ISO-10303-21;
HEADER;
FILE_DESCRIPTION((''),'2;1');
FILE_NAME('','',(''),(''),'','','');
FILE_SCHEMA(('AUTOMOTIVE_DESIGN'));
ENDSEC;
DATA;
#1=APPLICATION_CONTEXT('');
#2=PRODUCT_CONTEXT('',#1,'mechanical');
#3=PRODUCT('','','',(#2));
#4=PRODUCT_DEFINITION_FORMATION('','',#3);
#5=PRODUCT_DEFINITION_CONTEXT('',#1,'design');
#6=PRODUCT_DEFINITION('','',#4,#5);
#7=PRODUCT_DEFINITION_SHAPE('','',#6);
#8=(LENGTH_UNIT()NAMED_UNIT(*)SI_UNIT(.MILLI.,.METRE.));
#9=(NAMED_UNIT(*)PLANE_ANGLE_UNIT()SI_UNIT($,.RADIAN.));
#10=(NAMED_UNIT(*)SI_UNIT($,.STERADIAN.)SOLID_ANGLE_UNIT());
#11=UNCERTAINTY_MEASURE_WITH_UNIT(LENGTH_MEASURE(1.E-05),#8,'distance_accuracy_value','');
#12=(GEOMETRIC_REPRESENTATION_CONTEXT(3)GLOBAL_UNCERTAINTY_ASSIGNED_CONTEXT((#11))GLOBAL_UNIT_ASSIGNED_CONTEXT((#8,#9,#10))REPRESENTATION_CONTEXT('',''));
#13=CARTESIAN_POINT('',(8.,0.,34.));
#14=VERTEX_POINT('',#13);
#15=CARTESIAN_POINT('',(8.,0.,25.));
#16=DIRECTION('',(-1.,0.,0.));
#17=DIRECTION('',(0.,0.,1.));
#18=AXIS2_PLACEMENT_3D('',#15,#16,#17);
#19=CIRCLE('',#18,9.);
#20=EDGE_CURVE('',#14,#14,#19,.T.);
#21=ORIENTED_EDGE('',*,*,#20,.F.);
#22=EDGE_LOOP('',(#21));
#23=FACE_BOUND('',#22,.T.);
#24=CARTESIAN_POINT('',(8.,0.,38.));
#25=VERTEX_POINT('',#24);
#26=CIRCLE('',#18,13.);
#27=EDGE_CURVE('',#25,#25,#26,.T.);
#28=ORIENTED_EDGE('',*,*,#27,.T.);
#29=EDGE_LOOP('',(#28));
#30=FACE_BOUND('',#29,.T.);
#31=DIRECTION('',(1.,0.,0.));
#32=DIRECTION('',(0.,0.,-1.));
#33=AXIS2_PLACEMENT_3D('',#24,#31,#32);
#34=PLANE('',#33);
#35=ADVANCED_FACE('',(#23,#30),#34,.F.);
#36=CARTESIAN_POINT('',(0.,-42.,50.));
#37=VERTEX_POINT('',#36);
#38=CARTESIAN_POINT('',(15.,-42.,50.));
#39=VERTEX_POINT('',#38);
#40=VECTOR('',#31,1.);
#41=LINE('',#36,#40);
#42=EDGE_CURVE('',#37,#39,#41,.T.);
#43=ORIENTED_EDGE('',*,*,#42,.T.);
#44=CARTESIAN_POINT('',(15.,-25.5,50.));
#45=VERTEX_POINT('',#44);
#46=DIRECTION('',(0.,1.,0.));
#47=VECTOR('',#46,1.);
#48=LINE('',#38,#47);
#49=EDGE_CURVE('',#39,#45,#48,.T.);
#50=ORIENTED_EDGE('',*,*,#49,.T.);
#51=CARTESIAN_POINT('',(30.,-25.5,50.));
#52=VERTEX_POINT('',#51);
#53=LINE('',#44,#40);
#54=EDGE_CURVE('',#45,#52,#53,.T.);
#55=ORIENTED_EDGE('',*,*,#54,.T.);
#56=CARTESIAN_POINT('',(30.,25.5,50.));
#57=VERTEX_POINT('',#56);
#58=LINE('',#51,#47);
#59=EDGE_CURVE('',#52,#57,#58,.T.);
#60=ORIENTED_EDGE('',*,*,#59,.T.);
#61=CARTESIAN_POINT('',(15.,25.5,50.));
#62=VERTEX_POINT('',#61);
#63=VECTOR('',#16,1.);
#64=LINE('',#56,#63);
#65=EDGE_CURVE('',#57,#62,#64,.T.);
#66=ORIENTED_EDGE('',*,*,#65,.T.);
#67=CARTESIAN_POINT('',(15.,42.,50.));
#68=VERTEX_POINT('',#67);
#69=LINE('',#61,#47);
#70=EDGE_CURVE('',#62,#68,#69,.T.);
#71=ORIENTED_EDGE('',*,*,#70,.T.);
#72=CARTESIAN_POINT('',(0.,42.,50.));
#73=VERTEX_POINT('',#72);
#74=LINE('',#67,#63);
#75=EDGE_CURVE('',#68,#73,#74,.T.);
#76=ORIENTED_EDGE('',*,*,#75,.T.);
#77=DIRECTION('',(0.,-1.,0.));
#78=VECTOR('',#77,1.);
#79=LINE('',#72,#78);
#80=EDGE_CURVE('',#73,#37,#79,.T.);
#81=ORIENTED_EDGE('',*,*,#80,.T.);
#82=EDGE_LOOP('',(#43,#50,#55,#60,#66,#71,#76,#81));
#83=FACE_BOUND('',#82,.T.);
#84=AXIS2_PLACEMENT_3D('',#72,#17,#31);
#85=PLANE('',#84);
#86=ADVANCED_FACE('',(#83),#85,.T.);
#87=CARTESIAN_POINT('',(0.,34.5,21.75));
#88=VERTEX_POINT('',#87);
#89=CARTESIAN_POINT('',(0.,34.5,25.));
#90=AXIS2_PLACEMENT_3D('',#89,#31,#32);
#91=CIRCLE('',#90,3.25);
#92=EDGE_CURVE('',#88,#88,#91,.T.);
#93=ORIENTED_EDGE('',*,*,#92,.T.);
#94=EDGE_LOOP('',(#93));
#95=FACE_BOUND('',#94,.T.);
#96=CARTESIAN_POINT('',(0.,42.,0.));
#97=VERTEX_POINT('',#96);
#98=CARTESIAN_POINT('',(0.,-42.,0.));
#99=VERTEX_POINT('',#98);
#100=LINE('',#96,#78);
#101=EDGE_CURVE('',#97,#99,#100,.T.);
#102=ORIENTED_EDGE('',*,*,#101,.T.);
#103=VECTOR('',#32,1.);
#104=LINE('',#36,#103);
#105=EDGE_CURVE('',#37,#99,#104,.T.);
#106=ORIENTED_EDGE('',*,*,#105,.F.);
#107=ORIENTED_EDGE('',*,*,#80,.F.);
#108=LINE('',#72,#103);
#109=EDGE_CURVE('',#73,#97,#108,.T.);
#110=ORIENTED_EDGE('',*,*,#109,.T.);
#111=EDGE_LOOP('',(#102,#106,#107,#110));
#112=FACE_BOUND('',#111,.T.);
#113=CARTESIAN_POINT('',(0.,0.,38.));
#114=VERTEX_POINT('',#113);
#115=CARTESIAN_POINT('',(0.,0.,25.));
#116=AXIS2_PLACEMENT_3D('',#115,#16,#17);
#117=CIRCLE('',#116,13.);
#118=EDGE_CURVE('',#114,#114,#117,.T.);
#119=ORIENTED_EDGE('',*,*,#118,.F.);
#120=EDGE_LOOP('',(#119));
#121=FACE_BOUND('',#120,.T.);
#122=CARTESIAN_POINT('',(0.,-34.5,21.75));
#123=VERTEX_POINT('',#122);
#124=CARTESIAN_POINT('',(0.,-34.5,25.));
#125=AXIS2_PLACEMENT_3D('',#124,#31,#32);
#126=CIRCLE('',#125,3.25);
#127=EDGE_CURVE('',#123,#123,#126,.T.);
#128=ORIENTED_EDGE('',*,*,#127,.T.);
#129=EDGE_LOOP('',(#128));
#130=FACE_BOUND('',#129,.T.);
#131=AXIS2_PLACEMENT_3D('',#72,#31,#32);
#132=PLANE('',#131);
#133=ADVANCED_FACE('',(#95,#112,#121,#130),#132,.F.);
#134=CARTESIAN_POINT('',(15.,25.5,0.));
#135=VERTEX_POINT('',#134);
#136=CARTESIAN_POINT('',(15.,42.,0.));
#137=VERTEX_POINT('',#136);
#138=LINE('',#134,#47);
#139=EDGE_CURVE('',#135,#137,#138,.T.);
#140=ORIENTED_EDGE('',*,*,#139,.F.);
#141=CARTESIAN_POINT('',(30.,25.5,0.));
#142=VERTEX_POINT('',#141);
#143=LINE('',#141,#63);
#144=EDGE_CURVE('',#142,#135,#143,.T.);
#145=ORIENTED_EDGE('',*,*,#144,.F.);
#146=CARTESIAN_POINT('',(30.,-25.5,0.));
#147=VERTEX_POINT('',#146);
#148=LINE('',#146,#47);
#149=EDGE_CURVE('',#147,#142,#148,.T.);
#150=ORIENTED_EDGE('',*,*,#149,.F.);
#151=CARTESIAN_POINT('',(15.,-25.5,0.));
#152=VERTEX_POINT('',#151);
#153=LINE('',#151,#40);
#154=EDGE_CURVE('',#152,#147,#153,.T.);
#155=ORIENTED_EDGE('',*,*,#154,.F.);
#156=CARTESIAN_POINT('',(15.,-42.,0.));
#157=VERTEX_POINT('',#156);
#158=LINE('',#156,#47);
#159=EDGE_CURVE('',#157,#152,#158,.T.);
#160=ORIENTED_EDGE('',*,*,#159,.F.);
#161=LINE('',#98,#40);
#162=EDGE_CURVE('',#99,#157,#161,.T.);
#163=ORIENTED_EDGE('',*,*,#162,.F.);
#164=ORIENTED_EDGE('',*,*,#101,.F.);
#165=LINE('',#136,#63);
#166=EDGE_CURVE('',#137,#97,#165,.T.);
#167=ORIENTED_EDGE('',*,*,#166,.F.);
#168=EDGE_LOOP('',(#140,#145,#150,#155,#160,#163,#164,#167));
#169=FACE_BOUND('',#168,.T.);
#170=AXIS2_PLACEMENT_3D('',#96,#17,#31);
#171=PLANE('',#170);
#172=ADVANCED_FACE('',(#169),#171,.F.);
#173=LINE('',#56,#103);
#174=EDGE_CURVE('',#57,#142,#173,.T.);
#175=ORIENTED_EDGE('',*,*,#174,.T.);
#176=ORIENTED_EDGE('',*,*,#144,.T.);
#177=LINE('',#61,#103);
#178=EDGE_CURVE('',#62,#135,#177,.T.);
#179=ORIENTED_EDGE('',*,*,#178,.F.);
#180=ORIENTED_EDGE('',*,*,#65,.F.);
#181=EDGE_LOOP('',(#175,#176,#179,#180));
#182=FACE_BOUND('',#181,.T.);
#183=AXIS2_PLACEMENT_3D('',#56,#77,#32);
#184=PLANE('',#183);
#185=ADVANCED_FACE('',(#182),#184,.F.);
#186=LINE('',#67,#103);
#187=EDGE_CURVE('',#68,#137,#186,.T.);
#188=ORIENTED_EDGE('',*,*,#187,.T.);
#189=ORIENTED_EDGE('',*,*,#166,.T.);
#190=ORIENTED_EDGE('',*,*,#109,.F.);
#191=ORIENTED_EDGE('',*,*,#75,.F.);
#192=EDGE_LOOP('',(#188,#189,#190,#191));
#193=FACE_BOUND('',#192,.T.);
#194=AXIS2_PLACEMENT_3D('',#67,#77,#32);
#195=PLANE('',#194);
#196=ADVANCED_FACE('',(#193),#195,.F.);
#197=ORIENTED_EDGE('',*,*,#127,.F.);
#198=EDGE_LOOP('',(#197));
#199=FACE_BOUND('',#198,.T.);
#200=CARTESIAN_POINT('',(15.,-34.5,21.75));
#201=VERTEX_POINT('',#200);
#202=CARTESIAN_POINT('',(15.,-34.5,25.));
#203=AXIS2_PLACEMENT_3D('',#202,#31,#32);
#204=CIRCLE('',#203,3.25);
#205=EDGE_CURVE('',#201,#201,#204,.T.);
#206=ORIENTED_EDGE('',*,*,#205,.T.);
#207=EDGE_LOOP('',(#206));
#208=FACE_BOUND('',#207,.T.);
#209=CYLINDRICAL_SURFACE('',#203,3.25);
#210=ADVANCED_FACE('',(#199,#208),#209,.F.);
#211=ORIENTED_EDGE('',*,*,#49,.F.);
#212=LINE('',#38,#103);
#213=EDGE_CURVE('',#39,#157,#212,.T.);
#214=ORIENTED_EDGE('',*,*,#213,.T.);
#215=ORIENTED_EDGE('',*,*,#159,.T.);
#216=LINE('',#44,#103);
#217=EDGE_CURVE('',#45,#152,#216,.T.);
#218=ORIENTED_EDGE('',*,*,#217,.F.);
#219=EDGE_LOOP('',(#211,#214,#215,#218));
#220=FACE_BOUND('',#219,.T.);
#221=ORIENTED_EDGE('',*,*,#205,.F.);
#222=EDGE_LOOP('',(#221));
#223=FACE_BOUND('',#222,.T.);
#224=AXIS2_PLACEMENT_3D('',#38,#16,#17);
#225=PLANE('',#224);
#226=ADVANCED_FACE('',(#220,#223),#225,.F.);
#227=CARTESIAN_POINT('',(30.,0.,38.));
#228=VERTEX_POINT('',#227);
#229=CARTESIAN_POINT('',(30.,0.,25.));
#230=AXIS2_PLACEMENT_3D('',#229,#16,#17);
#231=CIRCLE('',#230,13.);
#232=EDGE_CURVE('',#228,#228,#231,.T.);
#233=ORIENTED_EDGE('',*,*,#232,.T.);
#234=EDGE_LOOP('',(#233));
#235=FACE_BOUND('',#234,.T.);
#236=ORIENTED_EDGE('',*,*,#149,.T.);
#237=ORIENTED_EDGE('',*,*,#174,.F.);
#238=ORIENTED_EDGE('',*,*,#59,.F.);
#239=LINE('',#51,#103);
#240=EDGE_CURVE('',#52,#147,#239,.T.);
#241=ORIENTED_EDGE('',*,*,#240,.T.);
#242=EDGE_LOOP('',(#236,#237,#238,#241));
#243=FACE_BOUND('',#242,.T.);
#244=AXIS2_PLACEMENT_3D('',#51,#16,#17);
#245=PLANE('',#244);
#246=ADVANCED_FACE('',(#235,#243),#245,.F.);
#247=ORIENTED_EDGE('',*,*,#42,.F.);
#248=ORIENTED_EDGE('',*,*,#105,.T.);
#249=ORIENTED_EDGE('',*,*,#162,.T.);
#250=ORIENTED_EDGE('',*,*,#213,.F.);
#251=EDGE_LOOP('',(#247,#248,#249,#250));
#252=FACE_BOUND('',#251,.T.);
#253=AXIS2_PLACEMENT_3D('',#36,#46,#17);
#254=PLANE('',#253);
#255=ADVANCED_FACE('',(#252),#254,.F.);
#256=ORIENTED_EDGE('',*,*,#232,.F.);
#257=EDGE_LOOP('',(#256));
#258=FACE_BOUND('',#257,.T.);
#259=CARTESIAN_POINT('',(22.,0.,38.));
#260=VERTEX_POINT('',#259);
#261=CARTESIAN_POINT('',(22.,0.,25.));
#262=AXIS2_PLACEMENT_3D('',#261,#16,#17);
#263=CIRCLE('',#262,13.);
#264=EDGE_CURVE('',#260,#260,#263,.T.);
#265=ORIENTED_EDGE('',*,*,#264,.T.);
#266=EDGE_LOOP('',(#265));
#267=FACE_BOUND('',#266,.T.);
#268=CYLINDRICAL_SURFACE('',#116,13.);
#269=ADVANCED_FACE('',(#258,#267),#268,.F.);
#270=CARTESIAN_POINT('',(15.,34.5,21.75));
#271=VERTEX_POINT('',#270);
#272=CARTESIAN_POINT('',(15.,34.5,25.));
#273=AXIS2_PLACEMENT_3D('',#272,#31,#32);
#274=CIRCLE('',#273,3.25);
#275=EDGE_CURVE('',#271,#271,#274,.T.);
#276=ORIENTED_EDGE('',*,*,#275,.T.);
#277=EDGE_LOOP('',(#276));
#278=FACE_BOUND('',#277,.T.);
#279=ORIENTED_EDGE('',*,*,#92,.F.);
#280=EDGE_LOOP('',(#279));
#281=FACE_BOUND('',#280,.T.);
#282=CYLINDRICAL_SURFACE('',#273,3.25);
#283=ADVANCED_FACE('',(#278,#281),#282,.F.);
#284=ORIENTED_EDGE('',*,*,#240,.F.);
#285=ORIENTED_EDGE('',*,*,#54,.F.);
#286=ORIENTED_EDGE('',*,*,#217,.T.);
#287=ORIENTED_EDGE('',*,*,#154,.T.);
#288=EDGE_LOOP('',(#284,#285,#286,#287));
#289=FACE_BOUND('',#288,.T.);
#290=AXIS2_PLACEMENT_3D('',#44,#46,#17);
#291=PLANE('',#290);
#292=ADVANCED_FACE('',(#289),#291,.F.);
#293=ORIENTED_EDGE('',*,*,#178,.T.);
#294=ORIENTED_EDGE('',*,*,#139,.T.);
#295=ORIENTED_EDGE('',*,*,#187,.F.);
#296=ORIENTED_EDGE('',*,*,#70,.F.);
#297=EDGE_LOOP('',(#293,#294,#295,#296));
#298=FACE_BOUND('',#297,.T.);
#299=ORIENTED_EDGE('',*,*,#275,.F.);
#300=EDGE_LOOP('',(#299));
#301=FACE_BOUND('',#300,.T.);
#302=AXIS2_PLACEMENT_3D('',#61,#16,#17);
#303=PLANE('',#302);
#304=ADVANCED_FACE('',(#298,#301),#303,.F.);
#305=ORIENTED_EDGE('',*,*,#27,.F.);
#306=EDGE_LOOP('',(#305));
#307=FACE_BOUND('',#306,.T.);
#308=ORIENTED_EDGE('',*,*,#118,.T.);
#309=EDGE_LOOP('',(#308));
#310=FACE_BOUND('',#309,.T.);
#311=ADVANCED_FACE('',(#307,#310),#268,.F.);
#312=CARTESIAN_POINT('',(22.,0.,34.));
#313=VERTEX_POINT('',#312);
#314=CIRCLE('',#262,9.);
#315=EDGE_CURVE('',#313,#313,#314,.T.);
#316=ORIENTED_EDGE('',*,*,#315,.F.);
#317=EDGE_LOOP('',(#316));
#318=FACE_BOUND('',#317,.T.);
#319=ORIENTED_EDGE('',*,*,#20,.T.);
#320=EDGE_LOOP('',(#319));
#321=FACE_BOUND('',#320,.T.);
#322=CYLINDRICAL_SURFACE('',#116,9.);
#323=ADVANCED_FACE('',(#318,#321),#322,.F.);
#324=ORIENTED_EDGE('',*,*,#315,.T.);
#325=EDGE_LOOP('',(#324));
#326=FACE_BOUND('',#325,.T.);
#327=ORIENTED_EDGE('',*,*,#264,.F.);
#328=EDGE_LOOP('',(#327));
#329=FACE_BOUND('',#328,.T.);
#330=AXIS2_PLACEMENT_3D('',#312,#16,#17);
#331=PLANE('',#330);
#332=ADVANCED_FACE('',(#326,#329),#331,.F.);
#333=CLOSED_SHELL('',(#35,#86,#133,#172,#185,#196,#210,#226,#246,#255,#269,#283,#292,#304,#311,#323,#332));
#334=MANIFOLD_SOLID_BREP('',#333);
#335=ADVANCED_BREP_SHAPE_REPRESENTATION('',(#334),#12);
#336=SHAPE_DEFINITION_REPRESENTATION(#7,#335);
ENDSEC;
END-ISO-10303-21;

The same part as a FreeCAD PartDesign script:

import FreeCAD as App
import Part
import Sketcher

V = App.Vector

doc = App.newDocument("Part")
body = doc.addObject("PartDesign::Body", "Body")

# Sketch on XY plane
sketch1 = body.newObject("Sketcher::SketchObject", "Sketch")
sketch1.AttachmentSupport = (doc.getObject("XY_Plane"), [""])
sketch1.MapMode = "FlatFace"
sketch1.addGeometry(Part.LineSegment(V(0, 42, 0), V(0, -42, 0)), False)
sketch1.addGeometry(Part.LineSegment(V(0, -42, 0), V(15, -42, 0)), False)
sketch1.addGeometry(Part.LineSegment(V(15, -42, 0), V(15, -25.5, 0)), False)
sketch1.addGeometry(Part.LineSegment(V(15, -25.5, 0), V(30, -25.5, 0)), False)
sketch1.addGeometry(Part.LineSegment(V(30, -25.5, 0), V(30, 25.5, 0)), False)
sketch1.addGeometry(Part.LineSegment(V(30, 25.5, 0), V(15, 25.5, 0)), False)
sketch1.addGeometry(Part.LineSegment(V(15, 25.5, 0), V(15, 42, 0)), False)
sketch1.addGeometry(Part.LineSegment(V(15, 42, 0), V(0, 42, 0)), False)
sketch1.addConstraint(Sketcher.Constraint("Coincident", 0, 2, 1, 1))
sketch1.addConstraint(Sketcher.Constraint("Coincident", 1, 2, 2, 1))
sketch1.addConstraint(Sketcher.Constraint("Coincident", 2, 2, 3, 1))
sketch1.addConstraint(Sketcher.Constraint("Coincident", 3, 2, 4, 1))
sketch1.addConstraint(Sketcher.Constraint("Coincident", 4, 2, 5, 1))
sketch1.addConstraint(Sketcher.Constraint("Coincident", 5, 2, 6, 1))
sketch1.addConstraint(Sketcher.Constraint("Coincident", 6, 2, 7, 1))
sketch1.addConstraint(Sketcher.Constraint("Coincident", 7, 2, 0, 1))
sketch1.addConstraint(Sketcher.Constraint("Vertical", 0))
sketch1.addConstraint(Sketcher.Constraint("Horizontal", 1))
sketch1.addConstraint(Sketcher.Constraint("Vertical", 2))
sketch1.addConstraint(Sketcher.Constraint("Horizontal", 3))
sketch1.addConstraint(Sketcher.Constraint("Vertical", 4))
sketch1.addConstraint(Sketcher.Constraint("Horizontal", 5))
sketch1.addConstraint(Sketcher.Constraint("Vertical", 6))
sketch1.addConstraint(Sketcher.Constraint("Horizontal", 7))
sketch1.addConstraint(Sketcher.Constraint("Symmetric", 0, 2, 7, 2, -1, 1))
sketch1.addConstraint(Sketcher.Constraint("Symmetric", 2, 2, 5, 2, -1))
sketch1.addConstraint(Sketcher.Constraint("Equal", 1, 3))
sketch1.addConstraint(Sketcher.Constraint("DistanceX", 1, 1, 1, 2, 15.0))
sketch1.addConstraint(Sketcher.Constraint("DistanceY", 0, 2, 0, 1, 84.0))
sketch1.addConstraint(Sketcher.Constraint("DistanceY", 4, 1, 4, 2, 51.0))
pad1 = body.newObject("PartDesign::Pad", "Pad")
pad1.Profile = sketch1
pad1.Length = 50

# Sketch on YZ plane
sketch2 = body.newObject("Sketcher::SketchObject", "Sketch001")
sketch2.AttachmentSupport = (doc.getObject("YZ_Plane"), [""])
sketch2.MapMode = "FlatFace"
sketch2.AttachmentOffset = App.Placement(V(0, 0, 15), App.Rotation())
sketch2.addGeometry(Part.Circle(V(-34.5, 25, 0), V(0, 0, 1), 3.25), False)
sketch2.addGeometry(Part.Circle(V(34.5, 25, 0), V(0, 0, 1), 3.25), False)
sketch2.addConstraint(Sketcher.Constraint("Equal", 0, 1))
sketch2.addConstraint(Sketcher.Constraint("Symmetric", 0, 3, 1, 3, -2))
sketch2.addConstraint(Sketcher.Constraint("Diameter", 0, 6.5))
sketch2.addConstraint(Sketcher.Constraint("DistanceY", -1, 1, 0, 3, 25.0))
sketch2.addConstraint(Sketcher.Constraint("DistanceX", 0, 3, 1, 3, 69.0))
doc.recompute()
hole = body.newObject("PartDesign::Hole", "Hole")
hole.Profile = sketch2
hole.ThreadType = "None"
hole.Diameter = 6.5
hole.DepthType = "ThroughAll"

# Sketch on XZ plane
sketch3 = body.newObject("Sketcher::SketchObject", "Sketch002")
sketch3.AttachmentSupport = (doc.getObject("XZ_Plane"), [""])
sketch3.MapMode = "FlatFace"
sketch3.addGeometry(Part.LineSegment(V(0, 25, 0), V(0, 38, 0)), False)
sketch3.addGeometry(Part.LineSegment(V(0, 38, 0), V(8, 38, 0)), False)
sketch3.addGeometry(Part.LineSegment(V(8, 38, 0), V(8, 34, 0)), False)
sketch3.addGeometry(Part.LineSegment(V(8, 34, 0), V(22, 34, 0)), False)
sketch3.addGeometry(Part.LineSegment(V(22, 34, 0), V(22, 38, 0)), False)
sketch3.addGeometry(Part.LineSegment(V(22, 38, 0), V(30, 38, 0)), False)
sketch3.addGeometry(Part.LineSegment(V(30, 38, 0), V(30, 25, 0)), False)
sketch3.addGeometry(Part.LineSegment(V(30, 25, 0), V(0, 25, 0)), False)
sketch3.addGeometry(Part.LineSegment(V(0, 25, 0), V(30, 25, 0)), True)  # axis
sketch3.addConstraint(Sketcher.Constraint("Coincident", 0, 2, 1, 1))
sketch3.addConstraint(Sketcher.Constraint("Coincident", 1, 2, 2, 1))
sketch3.addConstraint(Sketcher.Constraint("Coincident", 2, 2, 3, 1))
sketch3.addConstraint(Sketcher.Constraint("Coincident", 3, 2, 4, 1))
sketch3.addConstraint(Sketcher.Constraint("Coincident", 4, 2, 5, 1))
sketch3.addConstraint(Sketcher.Constraint("Coincident", 5, 2, 6, 1))
sketch3.addConstraint(Sketcher.Constraint("Coincident", 6, 2, 7, 1))
sketch3.addConstraint(Sketcher.Constraint("Coincident", 7, 2, 0, 1))
sketch3.addConstraint(Sketcher.Constraint("Vertical", 0))
sketch3.addConstraint(Sketcher.Constraint("Horizontal", 1))
sketch3.addConstraint(Sketcher.Constraint("Vertical", 2))
sketch3.addConstraint(Sketcher.Constraint("Horizontal", 3))
sketch3.addConstraint(Sketcher.Constraint("Vertical", 4))
sketch3.addConstraint(Sketcher.Constraint("Horizontal", 5))
sketch3.addConstraint(Sketcher.Constraint("Vertical", 6))
sketch3.addConstraint(Sketcher.Constraint("Horizontal", 7))
sketch3.addConstraint(Sketcher.Constraint("Horizontal", 8))
sketch3.addConstraint(Sketcher.Constraint("Coincident", 8, 1, 7, 2))
sketch3.addConstraint(Sketcher.Constraint("PointOnObject", 0, 2, -2))
sketch3.addConstraint(Sketcher.Constraint("Horizontal", 1, 2, 4, 2))
sketch3.addConstraint(Sketcher.Constraint("Vertical", 5, 2, 8, 2))
sketch3.addConstraint(Sketcher.Constraint("Equal", 1, 5))
sketch3.addConstraint(Sketcher.Constraint("DistanceX", 1, 1, 1, 2, 8.0))
sketch3.addConstraint(Sketcher.Constraint("DistanceX", 3, 1, 3, 2, 14.0))
sketch3.addConstraint(Sketcher.Constraint("DistanceY", 0, 1, 0, 2, 13.0))
sketch3.addConstraint(Sketcher.Constraint("DistanceY", 2, 2, 2, 1, 4.0))
sketch3.addConstraint(Sketcher.Constraint("DistanceY", -1, 1, 0, 2, 38.0))
groove = body.newObject("PartDesign::Groove", "Groove")
groove.Profile = sketch3
groove.ReferenceAxis = (sketch3, ["Axis0"])
groove.Angle = 360

doc.recompute()
